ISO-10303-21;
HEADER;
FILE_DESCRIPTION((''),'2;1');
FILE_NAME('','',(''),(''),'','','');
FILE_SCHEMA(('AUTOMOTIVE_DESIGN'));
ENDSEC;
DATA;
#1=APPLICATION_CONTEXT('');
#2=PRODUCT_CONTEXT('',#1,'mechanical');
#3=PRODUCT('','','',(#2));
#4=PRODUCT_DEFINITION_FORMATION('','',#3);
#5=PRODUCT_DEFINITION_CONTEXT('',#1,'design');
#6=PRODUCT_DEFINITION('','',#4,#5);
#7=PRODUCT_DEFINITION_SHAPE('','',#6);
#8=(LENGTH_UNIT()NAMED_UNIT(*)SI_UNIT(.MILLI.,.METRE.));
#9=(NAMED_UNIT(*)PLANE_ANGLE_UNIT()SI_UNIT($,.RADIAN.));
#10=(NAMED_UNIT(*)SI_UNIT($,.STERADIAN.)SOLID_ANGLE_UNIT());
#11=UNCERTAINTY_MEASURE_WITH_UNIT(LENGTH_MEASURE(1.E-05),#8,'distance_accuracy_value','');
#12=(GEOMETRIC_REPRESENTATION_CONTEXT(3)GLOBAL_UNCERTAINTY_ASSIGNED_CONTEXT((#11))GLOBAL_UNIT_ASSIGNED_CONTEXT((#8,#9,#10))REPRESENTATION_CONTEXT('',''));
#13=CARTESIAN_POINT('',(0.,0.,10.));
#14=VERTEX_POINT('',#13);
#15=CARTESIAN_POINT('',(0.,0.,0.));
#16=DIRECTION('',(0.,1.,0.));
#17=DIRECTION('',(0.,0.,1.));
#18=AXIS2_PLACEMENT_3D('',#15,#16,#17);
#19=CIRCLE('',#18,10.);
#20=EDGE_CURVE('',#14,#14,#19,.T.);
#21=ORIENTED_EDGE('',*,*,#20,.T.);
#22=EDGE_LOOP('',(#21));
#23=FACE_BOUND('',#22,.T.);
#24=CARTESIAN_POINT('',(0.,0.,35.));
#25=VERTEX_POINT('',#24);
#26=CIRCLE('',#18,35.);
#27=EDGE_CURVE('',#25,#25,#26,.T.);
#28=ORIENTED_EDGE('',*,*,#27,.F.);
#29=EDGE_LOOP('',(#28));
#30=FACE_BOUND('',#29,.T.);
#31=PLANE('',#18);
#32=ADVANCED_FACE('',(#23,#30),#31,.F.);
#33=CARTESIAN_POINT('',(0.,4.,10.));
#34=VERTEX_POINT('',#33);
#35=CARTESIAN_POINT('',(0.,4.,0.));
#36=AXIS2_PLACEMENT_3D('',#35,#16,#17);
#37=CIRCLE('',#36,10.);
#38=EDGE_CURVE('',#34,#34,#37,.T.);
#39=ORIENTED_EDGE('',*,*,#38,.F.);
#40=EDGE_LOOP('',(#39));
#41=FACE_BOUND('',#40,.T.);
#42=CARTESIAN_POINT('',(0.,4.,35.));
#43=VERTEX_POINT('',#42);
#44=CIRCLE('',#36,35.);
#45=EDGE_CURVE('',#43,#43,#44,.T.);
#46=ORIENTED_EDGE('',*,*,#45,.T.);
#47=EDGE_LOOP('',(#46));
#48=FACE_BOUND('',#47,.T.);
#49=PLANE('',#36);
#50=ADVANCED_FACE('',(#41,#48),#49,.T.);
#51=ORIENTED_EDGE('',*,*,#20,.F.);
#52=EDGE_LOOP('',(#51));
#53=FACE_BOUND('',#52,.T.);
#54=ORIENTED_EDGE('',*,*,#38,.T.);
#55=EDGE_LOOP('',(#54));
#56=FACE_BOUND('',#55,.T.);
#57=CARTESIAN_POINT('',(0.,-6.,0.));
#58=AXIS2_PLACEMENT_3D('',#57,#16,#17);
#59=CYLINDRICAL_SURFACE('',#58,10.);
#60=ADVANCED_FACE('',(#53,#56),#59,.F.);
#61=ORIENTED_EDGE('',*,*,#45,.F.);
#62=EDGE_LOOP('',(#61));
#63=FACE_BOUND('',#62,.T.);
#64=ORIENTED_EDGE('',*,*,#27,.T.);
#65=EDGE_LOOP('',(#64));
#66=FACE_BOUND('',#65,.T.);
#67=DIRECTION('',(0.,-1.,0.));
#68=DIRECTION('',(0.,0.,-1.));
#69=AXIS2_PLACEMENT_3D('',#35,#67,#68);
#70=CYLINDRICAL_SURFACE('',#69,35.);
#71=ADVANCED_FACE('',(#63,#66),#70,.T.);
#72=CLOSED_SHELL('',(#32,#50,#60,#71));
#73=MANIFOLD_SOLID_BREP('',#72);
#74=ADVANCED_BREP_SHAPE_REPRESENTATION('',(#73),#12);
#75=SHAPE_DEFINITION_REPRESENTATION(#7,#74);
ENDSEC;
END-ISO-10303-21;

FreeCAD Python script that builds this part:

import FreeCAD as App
import Part
import Sketcher
Q = App.Units.Quantity

doc = App.newDocument("Part")
body = doc.addObject("PartDesign::Body", "Body")

# Sketch on XZ plane
sketch1 = body.newObject("Sketcher::SketchObject", "Sketch")
sketch1.AttachmentSupport = (doc.getObject("XZ_Plane"), [""])
sketch1.MapMode = "FlatFace"
sketch1.addGeometry(Part.Circle(App.Vector(0, 0, 0), App.Vector(0, 0, 1), 35), False)
sketch1.addConstraint(Sketcher.Constraint("Coincident", 0, 3, -1, 1))
sketch1.addConstraint(Sketcher.Constraint("Diameter", 0, Q("70 mm")))
pad1 = body.newObject("PartDesign::Pad", "Pad")
pad1.Profile = sketch1
pad1.Length = 4
pad1.Reversed = True

# Sketch on XZ plane
sketch2 = body.newObject("Sketcher::SketchObject", "Sketch001")
sketch2.AttachmentSupport = (doc.getObject("XZ_Plane"), [""])
sketch2.MapMode = "FlatFace"
sketch2.AttachmentOffset = App.Placement(App.Vector(0, 0, -4), App.Rotation())
sketch2.addGeometry(Part.Circle(App.Vector(0, 0, 0), App.Vector(0, 0, 1), 10), False)
sketch2.addConstraint(Sketcher.Constraint("Coincident", 0, 3, -1, 1))
sketch2.addConstraint(Sketcher.Constraint("Diameter", 0, Q("20 mm")))
pocket1 = body.newObject("PartDesign::Pocket", "Pocket")
pocket1.Profile = sketch2
pocket1.Length = 10
pocket1.Reversed = True

doc.recompute()
